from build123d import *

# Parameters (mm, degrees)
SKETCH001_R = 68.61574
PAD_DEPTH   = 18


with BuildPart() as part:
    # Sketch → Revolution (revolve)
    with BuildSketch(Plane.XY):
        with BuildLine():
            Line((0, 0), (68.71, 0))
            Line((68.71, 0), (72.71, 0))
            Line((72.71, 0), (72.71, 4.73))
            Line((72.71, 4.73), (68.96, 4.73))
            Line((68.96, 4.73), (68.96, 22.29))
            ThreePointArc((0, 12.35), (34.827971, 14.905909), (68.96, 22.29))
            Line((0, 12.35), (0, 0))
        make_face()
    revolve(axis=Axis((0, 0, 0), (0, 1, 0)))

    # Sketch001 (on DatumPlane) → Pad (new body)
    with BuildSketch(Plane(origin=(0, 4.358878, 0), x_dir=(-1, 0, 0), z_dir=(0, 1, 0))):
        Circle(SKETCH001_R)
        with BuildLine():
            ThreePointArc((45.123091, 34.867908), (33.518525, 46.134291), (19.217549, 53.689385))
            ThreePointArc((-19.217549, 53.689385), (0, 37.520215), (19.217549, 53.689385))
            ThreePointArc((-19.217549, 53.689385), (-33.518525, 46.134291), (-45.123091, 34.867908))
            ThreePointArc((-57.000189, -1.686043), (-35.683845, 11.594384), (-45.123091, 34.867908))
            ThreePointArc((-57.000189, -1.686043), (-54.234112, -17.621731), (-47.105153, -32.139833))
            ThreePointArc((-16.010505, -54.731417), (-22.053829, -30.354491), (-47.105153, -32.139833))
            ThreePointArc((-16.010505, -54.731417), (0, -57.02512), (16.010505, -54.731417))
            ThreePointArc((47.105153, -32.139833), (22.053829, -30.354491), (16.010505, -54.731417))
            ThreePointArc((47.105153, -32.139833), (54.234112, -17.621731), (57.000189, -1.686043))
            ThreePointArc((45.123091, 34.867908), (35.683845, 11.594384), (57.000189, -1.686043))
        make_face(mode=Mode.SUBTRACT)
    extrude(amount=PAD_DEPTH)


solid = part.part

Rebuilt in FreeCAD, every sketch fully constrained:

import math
import FreeCAD as App
import Part
import Sketcher
from FreeCAD import Vector
Q = App.Units.Quantity

doc = App.newDocument("Part")
body = doc.addObject("PartDesign::Body", "Body")

# Sketch on XY plane
sketch1 = doc.addObject("Sketcher::SketchObject", "Sketch")
body.addObject(sketch1)
sketch1.AttachmentSupport = (doc.XY_Plane, [""])
sketch1.MapMode = "FlatFace"
sketch1.addGeometry([
    Part.LineSegment(Vector(0, 0, 0), Vector(72.71, 0, 0)),  # 0
    Part.LineSegment(Vector(72.71, 0, 0), Vector(72.71, 4.73, 0)),  # 1
    Part.LineSegment(Vector(72.71, 4.73, 0), Vector(68.96, 4.73, 0)),  # 2
    Part.LineSegment(Vector(68.96, 4.73, 0), Vector(68.96, 22.29, 0)),  # 3
    Part.ArcOfCircle(Part.Circle(Vector(-0.838794, 262.348574, 0), Vector(0, 0, 1), 249.999981), math.radians(-89.807762), math.radians(-73.787823)),  # 4
    Part.LineSegment(Vector(0, 12.35, 0), Vector(0, 0, 0)),  # 5
], False)
sketch1.addConstraint([
    Sketcher.Constraint("Coincident", 0, 2, 1, 1),
    Sketcher.Constraint("Coincident", 1, 2, 2, 1),
    Sketcher.Constraint("Coincident", 2, 2, 3, 1),
    Sketcher.Constraint("Coincident", 3, 2, 4, 2),
    Sketcher.Constraint("Coincident", 4, 1, 5, 1),
    Sketcher.Constraint("Coincident", 5, 2, 0, 1),
    Sketcher.Constraint("Horizontal", 0),
    Sketcher.Constraint("Vertical", 1),
    Sketcher.Constraint("Horizontal", 2),
    Sketcher.Constraint("Vertical", 3),
    Sketcher.Constraint("Vertical", 5),
    Sketcher.Constraint("Coincident", 5, 2, -1, 1),
    Sketcher.Constraint("DistanceX", 0, 1, 0, 2, Q("72.71 mm")),
    Sketcher.Constraint("DistanceX", 2, 2, 2, 1, Q("3.75 mm")),
    Sketcher.Constraint("DistanceY", 1, 1, 1, 2, Q("4.73 mm")),
    Sketcher.Constraint("DistanceY", 3, 1, 3, 2, Q("17.56 mm")),
    Sketcher.Constraint("DistanceY", 5, 2, 5, 1, Q("12.35 mm")),
    Sketcher.Constraint("Radius", 4, Q("249.999981 mm")),
])
revolution = doc.addObject("PartDesign::Revolution", "Revolution")
body.addObject(revolution)
revolution.Profile = sketch1
revolution.ReferenceAxis = (sketch1, ["V_Axis"])
revolution.Angle = 360

# Sketch on XZ plane
sketch2 = doc.addObject("Sketcher::SketchObject", "Sketch001")
body.addObject(sketch2)
sketch2.AttachmentSupport = (doc.XZ_Plane, [""])
sketch2.MapMode = "FlatFace"
sketch2.AttachmentOffset = App.Placement(Vector(0, 0, -4.358878), App.Rotation())
sketch2.addGeometry([
    Part.Circle(Vector(0, 0, 0), Vector(0, 0, 1), 68.61574),  # 0
    Part.ArcOfCircle(Part.Circle(Vector(-0.000004, 0.000003, 0), Vector(0, 0, 1), 57.025115), math.radians(109.694289), math.radians(142.305708)),  # 1
    Part.ArcOfCircle(Part.Circle(Vector(-54.234112, 17.621731, 0), Vector(0, 0, 1), 19.504905), math.radians(-98.152853), math.radians(62.152855)),  # 2
    Part.ArcOfCircle(Part.Circle(Vector(-0.000002, -0.000001, 0), Vector(0, 0, 1), 57.025117), math.radians(-178.305709), math.radians(-145.694292)),  # 3
    Part.ArcOfCircle(Part.Circle(Vector(-33.518524, -46.134291, 0), Vector(0, 0, 1), 19.504905), math.radians(-26.152854), math.radians(134.152854)),  # 4
    Part.ArcOfCircle(Part.Circle(Vector(0, -0.000007, 0), Vector(0, 0, 1), 57.025113), math.radians(-106.30571), math.radians(-73.69429)),  # 5
    Part.ArcOfCircle(Part.Circle(Vector(33.518524, -46.134291, 0), Vector(0, 0, 1), 19.504905), math.radians(45.847146), math.radians(206.152854)),  # 6
    Part.ArcOfCircle(Part.Circle(Vector(0.000002, -0.000001, 0), Vector(0, 0, 1), 57.025117), math.radians(-34.305708), math.radians(-1.694291)),  # 7
    Part.ArcOfCircle(Part.Circle(Vector(54.234112, 17.621731, 0), Vector(0, 0, 1), 19.504905), math.radians(117.847145), math.radians(278.152853)),  # 8
    Part.ArcOfCircle(Part.Circle(Vector(0.000004, 0.000003, 0), Vector(0, 0, 1), 57.025115), math.radians(37.694292), math.radians(70.305711)),  # 9
    Part.ArcOfCircle(Part.Circle(Vector(0, 57.02512, 0), Vector(0, 0, 1), 19.504905), math.radians(-170.152852), math.radians(-9.847148)),  # 10
], False)
sketch2.addConstraint([
    Sketcher.Constraint("Coincident", 1, 2, 2, 2),
    Sketcher.Constraint("Coincident", 2, 1, 3, 1),
    Sketcher.Constraint("Coincident", 3, 2, 4, 2),
    Sketcher.Constraint("Coincident", 4, 1, 5, 1),
    Sketcher.Constraint("Coincident", 5, 2, 6, 2),
    Sketcher.Constraint("Coincident", 6, 1, 7, 1),
    Sketcher.Constraint("Coincident", 7, 2, 8, 2),
    Sketcher.Constraint("Coincident", 8, 1, 9, 1),
    Sketcher.Constraint("Coincident", 9, 2, 10, 2),
    Sketcher.Constraint("Coincident", 10, 1, 1, 1),
    Sketcher.Constraint("Coincident", 0, 3, -1, 1),
    Sketcher.Constraint("Coincident", 1, 3, -1, 1),
    Sketcher.Constraint("Coincident", 3, 3, -1, 1),
    Sketcher.Constraint("Coincident", 5, 3, -1, 1),
    Sketcher.Constraint("Coincident", 7, 3, -1, 1),
    Sketcher.Constraint("Coincident", 9, 3, -1, 1),
    Sketcher.Constraint("Equal", 2, 4),
    Sketcher.Constraint("Equal", 4, 6),
    Sketcher.Constraint("Equal", 3, 7),
    Sketcher.Constraint("Equal", 6, 8),
    Sketcher.Constraint("Equal", 1, 9),
    Sketcher.Constraint("Equal", 8, 10),
    Sketcher.Constraint("Symmetric", 4, 3, 6, 3, -2),
    Sketcher.Constraint("Symmetric", 2, 3, 8, 3, -2),
    Sketcher.Constraint("PointOnObject", 10, 3, -2),
    Sketcher.Constraint("Diameter", 0, Q("137.23148 mm")),
    Sketcher.Constraint("Radius", 1, Q("57.025115 mm")),
    Sketcher.Constraint("Radius", 2, Q("19.504905 mm")),
    Sketcher.Constraint("Radius", 3, Q("57.025117 mm")),
    Sketcher.Constraint("Radius", 5, Q("57.025113 mm")),
    Sketcher.Constraint("DistanceX", 8, 1, 7, 2, Q("11.877098 mm")),
    Sketcher.Constraint("DistanceX", 10, 1, 9, 2, Q("38.435098 mm")),
    Sketcher.Constraint("DistanceY", -1, 1, 2, 3, Q("17.621731 mm")),
    Sketcher.Constraint("DistanceY", 4, 3, -1, 1, Q("46.134291 mm")),
    Sketcher.Constraint("DistanceX", 4, 3, 1, 3, Q("33.51852 mm")),
])
pad1 = doc.addObject("PartDesign::Pad", "Pad")
body.addObject(pad1)
pad1.Profile = sketch2
pad1.Length = 18
pad1.Reversed = True

doc.recompute()
